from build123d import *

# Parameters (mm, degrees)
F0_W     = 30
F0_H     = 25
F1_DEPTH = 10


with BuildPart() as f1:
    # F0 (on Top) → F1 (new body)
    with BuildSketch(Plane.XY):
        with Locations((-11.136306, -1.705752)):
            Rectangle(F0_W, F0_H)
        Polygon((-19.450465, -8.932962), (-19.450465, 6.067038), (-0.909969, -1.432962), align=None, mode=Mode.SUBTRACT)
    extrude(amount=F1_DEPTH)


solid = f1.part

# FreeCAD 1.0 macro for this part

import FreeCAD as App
import Part
import Sketcher
Q = App.Units.Quantity

doc = App.newDocument("Part")
body = doc.addObject("PartDesign::Body", "Body")

sketch1 = body.newObject("Sketcher::SketchObject", "Sketch")
sketch1.AttachmentSupport = (doc.getObject("XY_Plane"), [""])
sketch1.MapMode = "FlatFace"
sketch1.addGeometry([
    Part.LineSegment(App.Vector(-26, 11, 0), App.Vector(-26, -14, 0)),
    Part.LineSegment(App.Vector(-26, -14, 0), App.Vector(4, -14, 0)),
    Part.LineSegment(App.Vector(4, -14, 0), App.Vector(4, 11, 0)),
    Part.LineSegment(App.Vector(4, 11, 0), App.Vector(-26, 11, 0)),
    Part.LineSegment(App.Vector(-1, -1, 0), App.Vector(-19, -9, 0)),
    Part.LineSegment(App.Vector(-19, -9, 0), App.Vector(-19, 6, 0)),
    Part.LineSegment(App.Vector(-19, 6, 0), App.Vector(-1, -1, 0)),
], False)
sketch1.addConstraint([
    Sketcher.Constraint("Coincident", 0, 2, 1, 1),
    Sketcher.Constraint("Coincident", 1, 2, 2, 1),
    Sketcher.Constraint("Coincident", 2, 2, 3, 1),
    Sketcher.Constraint("Coincident", 3, 2, 0, 1),
    Sketcher.Constraint("Coincident", 4, 2, 5, 1),
    Sketcher.Constraint("Coincident", 5, 2, 6, 1),
    Sketcher.Constraint("Coincident", 6, 2, 4, 1),
    Sketcher.Constraint("Vertical", 0),
    Sketcher.Constraint("Horizontal", 1),
    Sketcher.Constraint("Vertical", 2),
    Sketcher.Constraint("Horizontal", 3),
    Sketcher.Constraint("Vertical", 5),
    Sketcher.Constraint("Equal", 4, 6),
    Sketcher.Constraint("DistanceX", 1, 1, 1, 2, Q("30 mm")),
    Sketcher.Constraint("DistanceY", 0, 2, 0, 1, Q("25 mm")),
    Sketcher.Constraint("DistanceY", 5, 1, 5, 2, Q("15 mm")),
    Sketcher.Constraint("Distance", 4, Q("20 mm")),
    Sketcher.Constraint("DistanceX", 6, 2, -1, 1, Q("0.909969 mm")),
    Sketcher.Constraint("DistanceX", 0, 2, 4, 2, Q("6.685841 mm")),
    Sketcher.Constraint("DistanceY", 0, 2, 4, 2, Q("5.27279 mm")),
    Sketcher.Constraint("DistanceY", 0, 2, -1, 1, Q("14.205752 mm")),
])
pad1 = body.newObject("PartDesign::Pad", "Pad")
pad1.Profile = sketch1
pad1.Length = 10

doc.recompute()
